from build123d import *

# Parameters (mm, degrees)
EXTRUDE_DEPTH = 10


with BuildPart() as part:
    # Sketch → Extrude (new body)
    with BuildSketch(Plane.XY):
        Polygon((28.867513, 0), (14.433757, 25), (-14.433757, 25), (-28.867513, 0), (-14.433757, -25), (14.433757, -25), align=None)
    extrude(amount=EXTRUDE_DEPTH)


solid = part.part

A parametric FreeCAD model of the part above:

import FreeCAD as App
import Part
import Sketcher
from FreeCAD import Vector
Q = App.Units.Quantity


def add_polygon(sketch, points):
    """Adds a closed chain of lines whose ends are joined by coincident constraints."""
    first, n = sketch.GeometryCount, len(points)
    for a, b in zip(points, points[1:] + points[:1]):
        sketch.addGeometry(Part.LineSegment(App.Vector(*a, 0), App.Vector(*b, 0)), False)
    for i in range(n):
        sketch.addConstraint(Sketcher.Constraint("Coincident", first + i, 2, first + (i + 1) % n, 1))

doc = App.newDocument("Part")
params = doc.addObject("Spreadsheet::Sheet", "Params")
for row, (alias, value) in enumerate([
    ("pad1_length", "10 mm"),
], start=1):
    params.set(f"A{row}", alias)
    params.set(f"B{row}", "=" + value)
    params.setAlias(f"B{row}", alias)

body = doc.addObject("PartDesign::Body", "Body")

# Sketch on XY plane
sketch1 = body.newObject("Sketcher::SketchObject", "Sketch")
sketch1.AttachmentSupport = (doc.getObject("XY_Plane"), [""])
sketch1.MapMode = "FlatFace"
add_polygon(sketch1, [(28.867513, 0), (14.433757, 25), (-14.433757, 25), (-28.867513, 0), (-14.433757, -25), (14.433757, -25)])  # lines 0-5
sketch1.addConstraint([
    Sketcher.Constraint("Horizontal", 1),
    Sketcher.Constraint("Horizontal", 4),
    Sketcher.Constraint("Symmetric", 0, 2, 3, 2, -1, 1),
    Sketcher.Constraint("Symmetric", 2, 2, 5, 2, -1, 1),
    Sketcher.Constraint("PointOnObject", 2, 2, -1),
    Sketcher.Constraint("Parallel", 2, 5),
    Sketcher.Constraint("Vertical", 1, 2, 3, 2),
    Sketcher.Constraint("Angle", 0, Q("119.999999 deg")),
    Sketcher.Constraint("DistanceY", -1, 1, 0, 2, 25.0),
    Sketcher.Constraint("DistanceX", 1, 2, 1, 1, 28.867514),
])
pad1 = body.newObject("PartDesign::Pad", "Pad")
pad1.Profile = sketch1
pad1.setExpression("Length", "Params.pad1_length")

doc.recompute()
